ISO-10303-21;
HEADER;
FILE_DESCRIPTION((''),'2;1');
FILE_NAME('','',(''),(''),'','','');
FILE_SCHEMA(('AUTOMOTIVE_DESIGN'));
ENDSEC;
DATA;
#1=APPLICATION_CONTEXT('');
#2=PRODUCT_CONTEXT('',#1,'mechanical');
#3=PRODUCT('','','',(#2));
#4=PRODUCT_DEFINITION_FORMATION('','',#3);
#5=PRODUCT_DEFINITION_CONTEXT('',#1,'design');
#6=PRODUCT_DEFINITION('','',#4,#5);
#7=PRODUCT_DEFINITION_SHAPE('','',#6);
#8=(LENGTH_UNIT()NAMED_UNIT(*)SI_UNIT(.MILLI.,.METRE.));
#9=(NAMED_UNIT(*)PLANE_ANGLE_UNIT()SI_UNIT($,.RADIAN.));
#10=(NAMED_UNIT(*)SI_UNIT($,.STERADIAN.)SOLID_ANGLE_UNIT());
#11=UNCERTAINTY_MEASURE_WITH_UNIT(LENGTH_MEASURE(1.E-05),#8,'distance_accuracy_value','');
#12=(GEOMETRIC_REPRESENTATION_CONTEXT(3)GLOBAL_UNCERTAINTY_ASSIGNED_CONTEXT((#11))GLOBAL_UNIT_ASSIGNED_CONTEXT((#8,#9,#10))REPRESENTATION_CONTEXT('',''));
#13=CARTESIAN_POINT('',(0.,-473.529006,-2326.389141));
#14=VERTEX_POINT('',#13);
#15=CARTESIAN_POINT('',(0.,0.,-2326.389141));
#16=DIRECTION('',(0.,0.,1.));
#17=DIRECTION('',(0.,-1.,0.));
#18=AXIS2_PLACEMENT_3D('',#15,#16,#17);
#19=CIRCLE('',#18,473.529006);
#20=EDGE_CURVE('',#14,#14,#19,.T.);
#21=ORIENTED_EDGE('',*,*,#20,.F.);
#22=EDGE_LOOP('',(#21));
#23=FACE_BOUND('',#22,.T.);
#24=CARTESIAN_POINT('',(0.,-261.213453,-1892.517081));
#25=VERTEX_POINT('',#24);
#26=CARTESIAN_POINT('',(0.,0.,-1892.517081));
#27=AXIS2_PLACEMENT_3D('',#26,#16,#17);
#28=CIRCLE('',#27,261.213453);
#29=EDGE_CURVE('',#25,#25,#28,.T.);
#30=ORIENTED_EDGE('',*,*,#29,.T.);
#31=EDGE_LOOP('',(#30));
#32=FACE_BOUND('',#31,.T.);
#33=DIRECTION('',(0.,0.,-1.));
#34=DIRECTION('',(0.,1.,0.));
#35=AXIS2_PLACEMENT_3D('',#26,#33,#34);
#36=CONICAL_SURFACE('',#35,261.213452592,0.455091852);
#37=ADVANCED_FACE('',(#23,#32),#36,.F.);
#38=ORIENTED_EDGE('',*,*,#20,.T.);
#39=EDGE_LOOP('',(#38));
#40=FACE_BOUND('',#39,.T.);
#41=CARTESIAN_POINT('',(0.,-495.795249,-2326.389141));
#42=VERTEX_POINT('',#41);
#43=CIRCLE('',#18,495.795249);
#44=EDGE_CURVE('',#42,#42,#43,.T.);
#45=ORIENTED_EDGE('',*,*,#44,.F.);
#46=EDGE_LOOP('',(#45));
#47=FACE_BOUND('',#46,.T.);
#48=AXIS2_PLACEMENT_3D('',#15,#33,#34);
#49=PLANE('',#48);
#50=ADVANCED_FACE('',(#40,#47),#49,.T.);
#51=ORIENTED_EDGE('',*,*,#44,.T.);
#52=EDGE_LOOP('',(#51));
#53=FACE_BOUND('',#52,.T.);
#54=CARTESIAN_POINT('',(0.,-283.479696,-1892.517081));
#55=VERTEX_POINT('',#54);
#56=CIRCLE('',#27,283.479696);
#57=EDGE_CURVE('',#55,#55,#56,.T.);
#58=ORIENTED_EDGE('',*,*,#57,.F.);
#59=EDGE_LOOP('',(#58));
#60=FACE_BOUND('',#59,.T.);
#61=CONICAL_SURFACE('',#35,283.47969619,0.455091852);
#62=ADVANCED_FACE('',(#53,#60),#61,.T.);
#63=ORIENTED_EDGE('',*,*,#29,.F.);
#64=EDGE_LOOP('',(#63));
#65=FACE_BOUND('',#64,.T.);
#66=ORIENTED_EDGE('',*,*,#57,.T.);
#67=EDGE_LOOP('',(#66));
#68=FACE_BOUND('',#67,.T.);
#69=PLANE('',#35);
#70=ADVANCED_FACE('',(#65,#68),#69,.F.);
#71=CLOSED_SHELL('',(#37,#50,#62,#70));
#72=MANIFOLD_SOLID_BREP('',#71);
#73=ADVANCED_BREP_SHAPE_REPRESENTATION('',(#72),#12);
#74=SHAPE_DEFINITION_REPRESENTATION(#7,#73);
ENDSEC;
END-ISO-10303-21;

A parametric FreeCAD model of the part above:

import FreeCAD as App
import Part
import Sketcher
from FreeCAD import Vector
Q = App.Units.Quantity

doc = App.newDocument("Part")
body = doc.addObject("PartDesign::Body", "Body")

# Sketch on YZ plane
sketch1 = doc.addObject("Sketcher::SketchObject", "Sketch")
body.addObject(sketch1)
sketch1.AttachmentSupport = (doc.YZ_Plane, [""])
sketch1.MapMode = "FlatFace"
sketch1.addGeometry(Part.LineSegment(Vector(496, -2326, 0), Vector(283, -1893, 0)), False)
sketch1.addGeometry(Part.LineSegment(Vector(283, -1893, 0), Vector(261, -1893, 0)), False)
sketch1.addGeometry(Part.LineSegment(Vector(261, -1893, 0), Vector(474, -2326, 0)), False)
sketch1.addGeometry(Part.LineSegment(Vector(474, -2326, 0), Vector(496, -2326, 0)), False)
sketch1.addConstraint(Sketcher.Constraint("Coincident", 0, 2, 1, 1))
sketch1.addConstraint(Sketcher.Constraint("Coincident", 1, 2, 2, 1))
sketch1.addConstraint(Sketcher.Constraint("Coincident", 2, 2, 3, 1))
sketch1.addConstraint(Sketcher.Constraint("Coincident", 3, 2, 0, 1))
sketch1.addConstraint(Sketcher.Constraint("Horizontal", 1))
sketch1.addConstraint(Sketcher.Constraint("Horizontal", 3))
sketch1.addConstraint(Sketcher.Constraint("Parallel", 0, 2))
sketch1.addConstraint(Sketcher.Constraint("Distance", 0, Q("483.035049 mm")))
sketch1.addConstraint(Sketcher.Constraint("DistanceX", 1, 2, 1, 1, Q("22.266244 mm")))
sketch1.addConstraint(Sketcher.Constraint("DistanceY", 0, 2, -1, 1, Q("1892.517081 mm")))
sketch1.addConstraint(Sketcher.Constraint("DistanceY", 2, 2, -1, 1, Q("2326.389141 mm")))
sketch1.addConstraint(Sketcher.Constraint("DistanceX", -1, 1, 3, 2, Q("495.795249 mm")))
revolution = doc.addObject("PartDesign::Revolution", "Revolution")
body.addObject(revolution)
revolution.Profile = sketch1
revolution.ReferenceAxis = (sketch1, ["V_Axis"])
revolution.Angle = 360

doc.recompute()
